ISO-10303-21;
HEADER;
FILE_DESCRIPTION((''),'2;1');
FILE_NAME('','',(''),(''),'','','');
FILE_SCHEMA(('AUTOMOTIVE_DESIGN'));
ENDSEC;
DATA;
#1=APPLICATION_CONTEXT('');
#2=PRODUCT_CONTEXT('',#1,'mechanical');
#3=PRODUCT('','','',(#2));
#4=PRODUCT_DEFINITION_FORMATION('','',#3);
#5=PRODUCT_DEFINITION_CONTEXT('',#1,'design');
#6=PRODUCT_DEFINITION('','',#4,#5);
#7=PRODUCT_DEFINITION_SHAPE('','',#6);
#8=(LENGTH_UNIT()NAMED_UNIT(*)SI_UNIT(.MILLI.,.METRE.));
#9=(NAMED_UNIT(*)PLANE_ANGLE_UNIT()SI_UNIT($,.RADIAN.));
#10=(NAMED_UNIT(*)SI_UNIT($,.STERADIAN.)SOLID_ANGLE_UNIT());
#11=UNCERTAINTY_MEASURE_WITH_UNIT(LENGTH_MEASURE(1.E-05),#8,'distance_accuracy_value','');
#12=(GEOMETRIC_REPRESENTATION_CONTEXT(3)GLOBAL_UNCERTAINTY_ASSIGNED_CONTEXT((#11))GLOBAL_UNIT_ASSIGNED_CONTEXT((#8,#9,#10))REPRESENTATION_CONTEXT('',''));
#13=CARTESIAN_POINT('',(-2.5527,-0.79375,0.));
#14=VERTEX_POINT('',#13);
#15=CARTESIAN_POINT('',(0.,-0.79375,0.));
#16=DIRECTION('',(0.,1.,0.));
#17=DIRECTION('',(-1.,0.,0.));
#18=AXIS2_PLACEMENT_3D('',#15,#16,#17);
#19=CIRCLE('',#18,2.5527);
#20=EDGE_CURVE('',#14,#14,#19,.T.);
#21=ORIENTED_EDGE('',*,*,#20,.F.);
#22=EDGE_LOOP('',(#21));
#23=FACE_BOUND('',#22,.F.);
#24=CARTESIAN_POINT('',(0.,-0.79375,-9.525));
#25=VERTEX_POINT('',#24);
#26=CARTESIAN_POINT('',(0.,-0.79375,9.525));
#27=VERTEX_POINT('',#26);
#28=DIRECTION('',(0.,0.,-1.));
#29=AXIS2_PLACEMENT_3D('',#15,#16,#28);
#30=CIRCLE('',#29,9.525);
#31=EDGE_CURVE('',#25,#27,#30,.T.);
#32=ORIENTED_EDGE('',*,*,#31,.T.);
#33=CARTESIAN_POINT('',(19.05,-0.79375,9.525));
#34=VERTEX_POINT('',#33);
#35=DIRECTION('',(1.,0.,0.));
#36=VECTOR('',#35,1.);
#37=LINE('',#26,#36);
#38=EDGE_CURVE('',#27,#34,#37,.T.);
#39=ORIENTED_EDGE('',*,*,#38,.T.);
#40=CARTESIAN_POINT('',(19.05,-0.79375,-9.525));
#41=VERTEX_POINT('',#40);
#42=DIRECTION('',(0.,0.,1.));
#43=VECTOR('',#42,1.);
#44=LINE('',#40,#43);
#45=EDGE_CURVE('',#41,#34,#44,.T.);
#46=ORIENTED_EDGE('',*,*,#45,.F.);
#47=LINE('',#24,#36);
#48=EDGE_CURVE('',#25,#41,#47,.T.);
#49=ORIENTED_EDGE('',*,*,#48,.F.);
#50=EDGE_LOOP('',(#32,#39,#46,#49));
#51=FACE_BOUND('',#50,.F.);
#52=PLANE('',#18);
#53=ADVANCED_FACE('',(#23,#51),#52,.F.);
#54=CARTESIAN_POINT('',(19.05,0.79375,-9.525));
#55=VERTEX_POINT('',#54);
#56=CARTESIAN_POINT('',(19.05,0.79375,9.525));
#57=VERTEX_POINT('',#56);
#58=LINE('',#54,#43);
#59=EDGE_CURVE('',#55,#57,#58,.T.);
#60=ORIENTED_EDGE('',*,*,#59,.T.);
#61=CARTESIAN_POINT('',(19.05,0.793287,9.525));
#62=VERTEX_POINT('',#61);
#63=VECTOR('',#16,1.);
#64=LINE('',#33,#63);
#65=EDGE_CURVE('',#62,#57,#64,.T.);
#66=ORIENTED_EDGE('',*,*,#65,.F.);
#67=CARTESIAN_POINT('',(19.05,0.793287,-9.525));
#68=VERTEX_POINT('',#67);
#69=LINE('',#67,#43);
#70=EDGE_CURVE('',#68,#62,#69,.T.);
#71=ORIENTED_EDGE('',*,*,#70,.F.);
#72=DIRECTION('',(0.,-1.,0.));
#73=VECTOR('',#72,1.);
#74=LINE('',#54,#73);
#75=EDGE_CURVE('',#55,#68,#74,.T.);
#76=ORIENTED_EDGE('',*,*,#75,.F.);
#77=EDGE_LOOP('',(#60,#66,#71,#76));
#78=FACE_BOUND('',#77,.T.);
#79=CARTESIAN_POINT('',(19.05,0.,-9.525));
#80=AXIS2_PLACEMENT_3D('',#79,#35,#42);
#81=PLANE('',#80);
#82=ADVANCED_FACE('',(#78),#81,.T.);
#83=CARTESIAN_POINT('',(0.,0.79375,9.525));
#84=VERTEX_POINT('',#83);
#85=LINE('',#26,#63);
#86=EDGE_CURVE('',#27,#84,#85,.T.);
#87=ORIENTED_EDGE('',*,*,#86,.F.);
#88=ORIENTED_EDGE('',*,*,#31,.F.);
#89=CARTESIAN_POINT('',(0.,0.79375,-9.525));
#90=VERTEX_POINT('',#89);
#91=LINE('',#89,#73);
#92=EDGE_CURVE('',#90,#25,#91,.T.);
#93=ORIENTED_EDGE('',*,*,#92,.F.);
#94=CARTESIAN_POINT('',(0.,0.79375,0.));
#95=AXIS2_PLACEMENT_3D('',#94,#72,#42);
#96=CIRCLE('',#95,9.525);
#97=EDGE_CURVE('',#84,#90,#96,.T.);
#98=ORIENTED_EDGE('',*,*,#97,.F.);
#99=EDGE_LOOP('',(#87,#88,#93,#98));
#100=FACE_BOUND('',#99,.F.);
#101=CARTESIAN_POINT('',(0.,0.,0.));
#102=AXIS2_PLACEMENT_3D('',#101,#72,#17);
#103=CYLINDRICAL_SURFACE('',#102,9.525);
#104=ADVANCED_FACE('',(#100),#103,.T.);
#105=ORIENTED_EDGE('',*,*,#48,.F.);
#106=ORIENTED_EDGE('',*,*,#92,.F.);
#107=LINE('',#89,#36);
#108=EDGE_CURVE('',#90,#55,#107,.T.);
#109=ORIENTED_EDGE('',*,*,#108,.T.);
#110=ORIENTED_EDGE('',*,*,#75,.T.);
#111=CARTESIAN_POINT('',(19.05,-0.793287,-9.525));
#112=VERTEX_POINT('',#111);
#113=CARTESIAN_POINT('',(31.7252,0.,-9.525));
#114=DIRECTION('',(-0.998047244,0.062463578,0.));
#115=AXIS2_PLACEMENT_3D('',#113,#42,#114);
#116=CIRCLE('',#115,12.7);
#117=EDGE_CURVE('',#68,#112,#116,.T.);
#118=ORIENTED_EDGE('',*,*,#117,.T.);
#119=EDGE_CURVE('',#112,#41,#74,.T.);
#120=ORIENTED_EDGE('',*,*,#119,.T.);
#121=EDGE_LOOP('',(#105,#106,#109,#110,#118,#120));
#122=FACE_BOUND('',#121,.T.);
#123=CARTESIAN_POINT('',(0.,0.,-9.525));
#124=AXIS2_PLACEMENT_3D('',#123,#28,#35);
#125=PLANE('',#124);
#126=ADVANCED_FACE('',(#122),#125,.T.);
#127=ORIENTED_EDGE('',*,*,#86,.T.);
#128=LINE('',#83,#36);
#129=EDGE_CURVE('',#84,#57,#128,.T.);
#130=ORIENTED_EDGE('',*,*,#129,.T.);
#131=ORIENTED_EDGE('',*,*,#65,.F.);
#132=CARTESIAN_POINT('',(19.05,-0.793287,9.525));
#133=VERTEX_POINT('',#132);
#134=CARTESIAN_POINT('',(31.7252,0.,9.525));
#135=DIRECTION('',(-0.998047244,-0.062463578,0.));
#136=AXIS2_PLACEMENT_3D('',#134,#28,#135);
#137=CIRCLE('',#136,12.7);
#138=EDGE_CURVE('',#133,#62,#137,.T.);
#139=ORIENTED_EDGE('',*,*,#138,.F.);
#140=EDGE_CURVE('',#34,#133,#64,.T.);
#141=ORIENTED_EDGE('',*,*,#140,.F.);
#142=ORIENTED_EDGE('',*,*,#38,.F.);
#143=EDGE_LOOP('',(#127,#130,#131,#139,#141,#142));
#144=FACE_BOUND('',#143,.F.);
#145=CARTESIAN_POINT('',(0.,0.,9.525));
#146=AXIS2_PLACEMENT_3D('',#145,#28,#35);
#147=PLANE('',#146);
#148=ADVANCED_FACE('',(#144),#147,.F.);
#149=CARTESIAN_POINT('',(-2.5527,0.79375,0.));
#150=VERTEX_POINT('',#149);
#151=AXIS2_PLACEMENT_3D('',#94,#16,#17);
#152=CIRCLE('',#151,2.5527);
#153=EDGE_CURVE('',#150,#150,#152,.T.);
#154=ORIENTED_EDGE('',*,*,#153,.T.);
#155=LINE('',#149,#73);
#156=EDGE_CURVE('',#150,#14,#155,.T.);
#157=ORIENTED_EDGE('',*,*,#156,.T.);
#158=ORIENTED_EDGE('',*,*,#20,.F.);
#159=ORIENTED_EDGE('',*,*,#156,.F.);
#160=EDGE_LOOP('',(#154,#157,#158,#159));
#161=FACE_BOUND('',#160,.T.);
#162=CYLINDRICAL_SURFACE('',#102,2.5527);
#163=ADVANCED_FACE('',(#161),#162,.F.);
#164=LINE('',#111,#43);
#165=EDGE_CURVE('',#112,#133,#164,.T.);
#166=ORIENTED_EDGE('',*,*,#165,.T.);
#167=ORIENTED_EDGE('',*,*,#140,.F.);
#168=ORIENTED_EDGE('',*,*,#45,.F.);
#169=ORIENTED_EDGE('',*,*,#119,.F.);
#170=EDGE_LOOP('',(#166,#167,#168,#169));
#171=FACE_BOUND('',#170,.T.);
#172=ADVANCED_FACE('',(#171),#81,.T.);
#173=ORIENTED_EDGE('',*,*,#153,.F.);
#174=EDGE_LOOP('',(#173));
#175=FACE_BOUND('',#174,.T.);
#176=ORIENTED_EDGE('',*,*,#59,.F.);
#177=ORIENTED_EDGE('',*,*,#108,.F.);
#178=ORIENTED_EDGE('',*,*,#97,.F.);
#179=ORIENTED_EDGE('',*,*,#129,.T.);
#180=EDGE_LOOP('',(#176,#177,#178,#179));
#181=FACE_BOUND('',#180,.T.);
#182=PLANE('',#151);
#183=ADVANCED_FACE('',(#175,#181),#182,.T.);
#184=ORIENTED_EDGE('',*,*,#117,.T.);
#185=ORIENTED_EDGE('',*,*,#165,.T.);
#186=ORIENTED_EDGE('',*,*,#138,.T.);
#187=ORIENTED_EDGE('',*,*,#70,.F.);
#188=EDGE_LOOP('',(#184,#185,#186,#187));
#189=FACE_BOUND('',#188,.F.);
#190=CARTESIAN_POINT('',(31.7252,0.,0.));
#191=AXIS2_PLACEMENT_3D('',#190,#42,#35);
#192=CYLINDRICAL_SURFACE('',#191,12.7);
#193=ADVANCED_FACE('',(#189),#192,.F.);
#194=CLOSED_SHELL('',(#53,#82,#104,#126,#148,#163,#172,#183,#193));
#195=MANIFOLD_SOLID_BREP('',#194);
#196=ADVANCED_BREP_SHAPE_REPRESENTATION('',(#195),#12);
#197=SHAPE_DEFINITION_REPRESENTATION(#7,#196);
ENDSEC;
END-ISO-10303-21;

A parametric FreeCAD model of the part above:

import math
import FreeCAD as App
import Part
import Sketcher
Q = App.Units.Quantity

doc = App.newDocument("Part")
body = doc.addObject("PartDesign::Body", "Body")

sketch1 = doc.addObject("Sketcher::SketchObject", "Sketch")
body.addObject(sketch1)
sketch1.AttachmentSupport = (doc.XZ_Plane, [""])
sketch1.MapMode = "FlatFace"
sketch1.addGeometry([
    Part.ArcOfCircle(Part.Circle(App.Vector(0, 0, 0), App.Vector(0, 0, 1), 9.525), math.radians(90), math.radians(270)),
    Part.LineSegment(App.Vector(0, 9.525, 0), App.Vector(19.05, 9.525, 0)),
    Part.LineSegment(App.Vector(19.05, 9.525, 0), App.Vector(19.05, -9.525, 0)),
    Part.LineSegment(App.Vector(19.05, -9.525, 0), App.Vector(0, -9.525, 0)),
    Part.Circle(App.Vector(0, 0, 0), App.Vector(0, 0, 1), 2.5527),
], False)
sketch1.addConstraint([
    Sketcher.Constraint("Tangent", 0, 1, 1, 1),
    Sketcher.Constraint("Coincident", 1, 2, 2, 1),
    Sketcher.Constraint("Coincident", 2, 2, 3, 1),
    Sketcher.Constraint("Tangent", 3, 2, 0, 2),
    Sketcher.Constraint("Horizontal", 1),
    Sketcher.Constraint("Vertical", 2),
    Sketcher.Constraint("Horizontal", 3),
    Sketcher.Constraint("Coincident", 0, 3, -1, 1),
    Sketcher.Constraint("Coincident", 4, 3, -1, 1),
    Sketcher.Constraint("Equal", 3, 2),
    Sketcher.Constraint("Diameter", 4, Q("0.201 in")),
    Sketcher.Constraint("Radius", 0, Q("0.375 in")),
])
pad1 = doc.addObject("PartDesign::Pad", "Pad")
body.addObject(pad1)
pad1.Profile = sketch1
pad1.Length = Q("0.0625 in")
pad1.Midplane = True

sketch2 = doc.addObject("Sketcher::SketchObject", "Sketch001")
body.addObject(sketch2)
sketch2.AttachmentSupport = (doc.XY_Plane, [""])
sketch2.MapMode = "FlatFace"
sketch2.addGeometry(Part.Circle(App.Vector(31.7252, 0, 0), App.Vector(0, 0, 1), 12.7), False)
sketch2.addConstraint([
    Sketcher.Constraint("PointOnObject", 0, 3, -1),
    Sketcher.Constraint("Diameter", 0, Q("1 in")),
    Sketcher.Constraint("DistanceX", -1, 1, 0, 3, 31.7252),
])
pocket1 = doc.addObject("PartDesign::Pocket", "Pocket")
body.addObject(pocket1)
pocket1.Profile = sketch2
pocket1.Length = Q("2 in")
pocket1.Midplane = True

doc.recompute()
